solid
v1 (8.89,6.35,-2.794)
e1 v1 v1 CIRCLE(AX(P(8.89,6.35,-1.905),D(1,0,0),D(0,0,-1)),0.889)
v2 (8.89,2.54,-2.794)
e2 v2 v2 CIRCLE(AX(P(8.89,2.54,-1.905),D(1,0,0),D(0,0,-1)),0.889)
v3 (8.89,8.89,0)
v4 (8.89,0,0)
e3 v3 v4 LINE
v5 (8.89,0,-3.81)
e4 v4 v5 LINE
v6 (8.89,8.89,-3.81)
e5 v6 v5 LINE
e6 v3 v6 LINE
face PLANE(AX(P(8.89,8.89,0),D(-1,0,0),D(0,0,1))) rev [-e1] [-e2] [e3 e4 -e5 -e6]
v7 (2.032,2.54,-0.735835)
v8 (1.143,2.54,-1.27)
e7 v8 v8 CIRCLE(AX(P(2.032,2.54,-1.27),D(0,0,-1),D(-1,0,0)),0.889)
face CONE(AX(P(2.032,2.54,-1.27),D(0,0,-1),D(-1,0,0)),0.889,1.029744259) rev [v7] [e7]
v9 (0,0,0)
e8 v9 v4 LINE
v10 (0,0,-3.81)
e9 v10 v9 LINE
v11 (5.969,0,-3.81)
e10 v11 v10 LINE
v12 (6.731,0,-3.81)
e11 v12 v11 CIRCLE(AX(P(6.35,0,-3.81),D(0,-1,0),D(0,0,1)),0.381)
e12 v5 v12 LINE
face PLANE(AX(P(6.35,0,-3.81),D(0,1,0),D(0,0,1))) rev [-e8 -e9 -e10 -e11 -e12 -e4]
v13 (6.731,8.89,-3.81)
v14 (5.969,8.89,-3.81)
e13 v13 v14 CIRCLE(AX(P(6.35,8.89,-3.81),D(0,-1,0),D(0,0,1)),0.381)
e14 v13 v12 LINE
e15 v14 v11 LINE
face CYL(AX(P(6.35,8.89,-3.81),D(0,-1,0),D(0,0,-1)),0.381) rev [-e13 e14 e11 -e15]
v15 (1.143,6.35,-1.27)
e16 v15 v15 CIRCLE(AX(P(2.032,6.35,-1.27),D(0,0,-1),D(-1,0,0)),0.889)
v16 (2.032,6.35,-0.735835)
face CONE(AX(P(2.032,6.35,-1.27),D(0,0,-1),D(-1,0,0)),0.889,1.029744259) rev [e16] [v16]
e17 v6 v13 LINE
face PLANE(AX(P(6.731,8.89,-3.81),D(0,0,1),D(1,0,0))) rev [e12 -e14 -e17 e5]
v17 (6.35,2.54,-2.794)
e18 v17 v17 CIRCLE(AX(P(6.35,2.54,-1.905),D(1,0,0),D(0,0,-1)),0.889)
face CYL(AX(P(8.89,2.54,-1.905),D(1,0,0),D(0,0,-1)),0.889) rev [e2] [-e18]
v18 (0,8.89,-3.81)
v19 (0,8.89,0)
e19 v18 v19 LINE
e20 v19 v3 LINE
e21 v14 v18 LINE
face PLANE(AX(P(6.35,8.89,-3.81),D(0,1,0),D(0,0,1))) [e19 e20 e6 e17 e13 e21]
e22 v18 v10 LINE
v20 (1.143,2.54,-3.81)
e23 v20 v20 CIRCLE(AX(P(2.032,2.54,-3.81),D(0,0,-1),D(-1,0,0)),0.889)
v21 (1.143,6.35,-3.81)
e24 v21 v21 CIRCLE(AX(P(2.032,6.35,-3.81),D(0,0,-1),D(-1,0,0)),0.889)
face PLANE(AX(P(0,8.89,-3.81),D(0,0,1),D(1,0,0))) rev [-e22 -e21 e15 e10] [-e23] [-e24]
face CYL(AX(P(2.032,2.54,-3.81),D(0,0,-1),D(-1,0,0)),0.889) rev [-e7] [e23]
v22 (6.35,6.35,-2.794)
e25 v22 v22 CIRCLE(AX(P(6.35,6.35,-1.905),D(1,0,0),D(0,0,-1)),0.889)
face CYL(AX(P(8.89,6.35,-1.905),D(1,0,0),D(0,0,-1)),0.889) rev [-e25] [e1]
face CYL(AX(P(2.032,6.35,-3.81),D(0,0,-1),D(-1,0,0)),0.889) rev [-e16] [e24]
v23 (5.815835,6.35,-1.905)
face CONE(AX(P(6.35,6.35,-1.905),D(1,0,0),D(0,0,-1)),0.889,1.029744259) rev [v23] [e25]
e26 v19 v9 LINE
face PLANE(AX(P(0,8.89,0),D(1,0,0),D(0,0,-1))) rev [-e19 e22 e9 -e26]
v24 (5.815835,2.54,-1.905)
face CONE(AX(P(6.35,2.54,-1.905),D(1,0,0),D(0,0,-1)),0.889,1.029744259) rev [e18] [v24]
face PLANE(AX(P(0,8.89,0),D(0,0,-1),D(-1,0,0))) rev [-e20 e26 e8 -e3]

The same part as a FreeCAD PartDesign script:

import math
import FreeCAD as App
import Part
import Sketcher
Q = App.Units.Quantity

doc = App.newDocument("Part")
body = doc.addObject("PartDesign::Body", "Body")

# Sketch on XZ plane
sketch1 = body.newObject("Sketcher::SketchObject", "Sketch")
sketch1.AttachmentSupport = (doc.getObject("XZ_Plane"), [""])
sketch1.MapMode = "FlatFace"
sketch1.addGeometry([
    Part.LineSegment(App.Vector(8.89, -3.81, 0), App.Vector(6.73, -3.81, 0)),  # 0
    Part.ArcOfCircle(Part.Circle(App.Vector(6.35, -3.81, 0), App.Vector(0, 0, 1), 0.38), math.radians(0), math.radians(180)),  # 1
    Part.LineSegment(App.Vector(5.97, -3.81, 0), App.Vector(0, -3.81, 0)),  # 2
    Part.LineSegment(App.Vector(0, -3.81, 0), App.Vector(0, 0, 0)),  # 3
    Part.LineSegment(App.Vector(0, 0, 0), App.Vector(8.89, 0, 0)),  # 4
    Part.LineSegment(App.Vector(8.89, 0, 0), App.Vector(8.89, -3.81, 0)),  # 5
], False)
sketch1.addConstraint([
    Sketcher.Constraint("Coincident", 0, 2, 1, 1),
    Sketcher.Constraint("Coincident", 1, 2, 2, 1),
    Sketcher.Constraint("Coincident", 2, 2, 3, 1),
    Sketcher.Constraint("Coincident", 3, 2, 4, 1),
    Sketcher.Constraint("Coincident", 4, 2, 5, 1),
    Sketcher.Constraint("Coincident", 5, 2, 0, 1),
    Sketcher.Constraint("Horizontal", 0),
    Sketcher.Constraint("Horizontal", 2),
    Sketcher.Constraint("Vertical", 3),
    Sketcher.Constraint("Horizontal", 4),
    Sketcher.Constraint("Vertical", 5),
    Sketcher.Constraint("Coincident", 3, 2, -1, 1),
    Sketcher.Constraint("Horizontal", 1, 3, 0, 2),
    Sketcher.Constraint("Horizontal", 0, 2, 1, 2),
    Sketcher.Constraint("Radius", 1, Q("0.015 in")),
    Sketcher.Constraint("DistanceX", 4, 1, 4, 2, Q("0.35 in")),
    Sketcher.Constraint("DistanceY", 3, 1, 3, 2, Q("0.15 in")),
    Sketcher.Constraint("DistanceX", 1, 3, 4, 2, Q("0.1 in")),
])
pad1 = body.newObject("PartDesign::Pad", "Pad")
pad1.Profile = sketch1
pad1.Length = Q("0.35 in")
pad1.Reversed = True

# Sketch on YZ plane
sketch2 = body.newObject("Sketcher::SketchObject", "Sketch001")
sketch2.AttachmentSupport = (doc.getObject("YZ_Plane"), [""])
sketch2.MapMode = "FlatFace"
sketch2.AttachmentOffset = App.Placement(App.Vector(0, 0, 0.35 * 25.4), App.Rotation())
sketch2.addGeometry([
    Part.Circle(App.Vector(2.5, -1.9, 0), App.Vector(0, 0, 1), 0.9),
    Part.Circle(App.Vector(6.3, -1.9, 0), App.Vector(0, 0, 1), 0.9),
], False)
sketch2.addConstraint([
    Sketcher.Constraint("Equal", 0, 1),
    Sketcher.Constraint("Horizontal", 0, 3, 1, 3),
    Sketcher.Constraint("Diameter", 0, Q("0.07 in")),
    Sketcher.Constraint("DistanceX", -1, 1, 0, 3, Q("0.1 in")),
    Sketcher.Constraint("DistanceX", -1, 1, 1, 3, Q("0.25 in")),
    Sketcher.Constraint("DistanceY", 0, 3, -1, 1, Q("0.075 in")),
])
doc.recompute()
hole = body.newObject("PartDesign::Hole", "Hole")
hole.Profile = sketch2
hole.ThreadType = "None"
hole.Diameter = Q("0.07 in")
hole.DepthType = "Dimension"
hole.Depth = Q("0.1 in")
hole.DrillPoint = "Angled"
hole.DrillPointAngle = 118

# Sketch on XY plane
sketch3 = body.newObject("Sketcher::SketchObject", "Sketch002")
sketch3.AttachmentSupport = (doc.getObject("XY_Plane"), [""])
sketch3.MapMode = "FlatFace"
sketch3.AttachmentOffset = App.Placement(App.Vector(0, 0, -0.15 * 25.4), App.Rotation())
sketch3.addGeometry([
    Part.Circle(App.Vector(2, 2.5, 0), App.Vector(0, 0, 1), 0.9),
    Part.Circle(App.Vector(2, 6.3, 0), App.Vector(0, 0, 1), 0.9),
], False)
sketch3.addConstraint([
    Sketcher.Constraint("Equal", 0, 1),
    Sketcher.Constraint("Vertical", 0, 3, 1, 3),
    Sketcher.Constraint("Diameter", 0, Q("0.07 in")),
    Sketcher.Constraint("DistanceY", -1, 1, 0, 3, Q("0.1 in")),
    Sketcher.Constraint("DistanceX", -1, 1, 0, 3, Q("0.08 in")),
    Sketcher.Constraint("DistanceY", -1, 1, 1, 3, Q("0.25 in")),
])
doc.recompute()
hole2 = body.newObject("PartDesign::Hole", "Hole001")
hole2.Profile = sketch3
hole2.ThreadType = "None"
hole2.Diameter = Q("0.07 in")
hole2.DepthType = "Dimension"
hole2.Depth = Q("0.1 in")
hole2.DrillPoint = "Angled"
hole2.DrillPointAngle = 118
hole2.Reversed = True

doc.recompute()
